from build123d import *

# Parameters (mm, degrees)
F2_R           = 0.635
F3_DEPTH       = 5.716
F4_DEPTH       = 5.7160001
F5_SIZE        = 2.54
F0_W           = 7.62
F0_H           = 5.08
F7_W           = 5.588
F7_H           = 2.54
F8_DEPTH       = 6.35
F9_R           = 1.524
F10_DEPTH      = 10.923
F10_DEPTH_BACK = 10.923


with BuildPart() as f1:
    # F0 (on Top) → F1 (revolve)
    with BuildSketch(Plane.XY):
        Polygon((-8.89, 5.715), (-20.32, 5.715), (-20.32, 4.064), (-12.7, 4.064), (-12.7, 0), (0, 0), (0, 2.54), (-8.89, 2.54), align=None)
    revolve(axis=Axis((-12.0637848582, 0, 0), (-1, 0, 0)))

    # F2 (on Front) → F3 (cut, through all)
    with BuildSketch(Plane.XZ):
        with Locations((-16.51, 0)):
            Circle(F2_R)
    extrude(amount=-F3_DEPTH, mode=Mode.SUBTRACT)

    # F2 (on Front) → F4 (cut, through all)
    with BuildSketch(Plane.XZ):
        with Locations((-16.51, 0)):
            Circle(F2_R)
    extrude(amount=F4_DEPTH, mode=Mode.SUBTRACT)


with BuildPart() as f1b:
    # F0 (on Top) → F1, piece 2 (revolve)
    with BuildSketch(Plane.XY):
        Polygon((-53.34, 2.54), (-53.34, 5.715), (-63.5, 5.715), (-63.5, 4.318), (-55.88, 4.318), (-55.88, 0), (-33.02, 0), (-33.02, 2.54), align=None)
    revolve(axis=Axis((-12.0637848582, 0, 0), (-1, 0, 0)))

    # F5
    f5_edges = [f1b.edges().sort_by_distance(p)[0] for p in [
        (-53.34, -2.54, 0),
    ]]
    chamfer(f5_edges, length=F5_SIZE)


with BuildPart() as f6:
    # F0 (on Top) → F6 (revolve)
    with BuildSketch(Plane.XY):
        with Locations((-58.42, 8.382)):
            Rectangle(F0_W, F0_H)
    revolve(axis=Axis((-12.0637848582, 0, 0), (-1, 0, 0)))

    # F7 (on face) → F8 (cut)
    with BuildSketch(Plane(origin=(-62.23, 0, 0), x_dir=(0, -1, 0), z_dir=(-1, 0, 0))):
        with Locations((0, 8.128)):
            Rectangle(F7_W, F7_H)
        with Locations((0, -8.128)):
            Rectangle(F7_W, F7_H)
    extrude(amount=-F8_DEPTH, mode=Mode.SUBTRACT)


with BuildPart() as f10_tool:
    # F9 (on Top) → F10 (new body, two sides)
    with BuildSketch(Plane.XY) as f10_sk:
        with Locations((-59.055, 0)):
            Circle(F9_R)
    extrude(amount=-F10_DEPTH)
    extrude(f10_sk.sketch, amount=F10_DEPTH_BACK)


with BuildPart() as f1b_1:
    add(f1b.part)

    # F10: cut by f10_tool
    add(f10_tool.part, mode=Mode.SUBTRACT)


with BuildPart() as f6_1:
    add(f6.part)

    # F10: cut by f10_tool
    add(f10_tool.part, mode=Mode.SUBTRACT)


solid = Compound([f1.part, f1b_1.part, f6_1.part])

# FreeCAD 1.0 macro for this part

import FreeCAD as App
import Part
import Sketcher
Q = App.Units.Quantity


def edges_at(feature, points):
    """Names of the edges that pass closest to the given points."""
    edges = feature.Shape.Edges
    near = lambda p: min(range(len(edges)), key=lambda i: edges[i].distToShape(Part.Vertex(*p))[0])
    return sorted({f"Edge{near(p) + 1}" for p in points})


def add_polygon(sketch, points):
    """Adds a closed chain of lines whose ends are joined by coincident constraints."""
    first, n = sketch.GeometryCount, len(points)
    for a, b in zip(points, points[1:] + points[:1]):
        sketch.addGeometry(Part.LineSegment(App.Vector(*a, 0), App.Vector(*b, 0)), False)
    for i in range(n):
        sketch.addConstraint(Sketcher.Constraint("Coincident", first + i, 2, first + (i + 1) % n, 1))

doc = App.newDocument("Part")
body = doc.addObject("PartDesign::Body", "Body")

# Sketch on XY plane
sketch1 = doc.addObject("Sketcher::SketchObject", "Sketch")
body.addObject(sketch1)
sketch1.AttachmentSupport = (doc.XY_Plane, [""])
sketch1.MapMode = "FlatFace"
add_polygon(sketch1, [(-8.9, 5.7), (-20.3, 5.7), (-20.3, 4.1), (-12.7, 4.1), (-12.7, 0), (0, 0), (0, 2.5), (-8.9, 2.5)])  # lines 0-7
sketch1.addConstraint(Sketcher.Constraint("Horizontal", 0))
sketch1.addConstraint(Sketcher.Constraint("Vertical", 1))
sketch1.addConstraint(Sketcher.Constraint("Horizontal", 2))
sketch1.addConstraint(Sketcher.Constraint("Vertical", 3))
sketch1.addConstraint(Sketcher.Constraint("Horizontal", 4))
sketch1.addConstraint(Sketcher.Constraint("Vertical", 5))
sketch1.addConstraint(Sketcher.Constraint("Horizontal", 6))
sketch1.addConstraint(Sketcher.Constraint("Vertical", 7))
sketch1.addConstraint(Sketcher.Constraint("Coincident", 4, 2, -1, 1))
sketch1.addConstraint(Sketcher.Constraint("DistanceX", 2, 1, 2, 2, Q("0.3 in")))
sketch1.addConstraint(Sketcher.Constraint("DistanceX", 4, 1, 4, 2, Q("0.5 in")))
sketch1.addConstraint(Sketcher.Constraint("DistanceY", 5, 1, 5, 2, Q("0.1 in")))
sketch1.addConstraint(Sketcher.Constraint("DistanceX", 0, 2, 0, 1, Q("0.45 in")))
sketch1.addConstraint(Sketcher.Constraint("DistanceY", 3, 2, 3, 1, Q("0.16 in")))
sketch1.addConstraint(Sketcher.Constraint("DistanceY", 1, 2, 1, 1, Q("0.065 in")))
revolution = doc.addObject("PartDesign::Revolution", "Revolution")
body.addObject(revolution)
revolution.Profile = sketch1
revolution.ReferenceAxis = (sketch1, ["H_Axis"])
revolution.Angle = 360

# Sketch on XZ plane
sketch2 = doc.addObject("Sketcher::SketchObject", "Sketch001")
body.addObject(sketch2)
sketch2.AttachmentSupport = (doc.XZ_Plane, [""])
sketch2.MapMode = "FlatFace"
sketch2.addGeometry(Part.Circle(App.Vector(-16.5, 0, 0), App.Vector(0, 0, 1), 0.6), False)
sketch2.addConstraint(Sketcher.Constraint("PointOnObject", 0, 3, -1))
sketch2.addConstraint(Sketcher.Constraint("Diameter", 0, Q("0.05 in")))
sketch2.addConstraint(Sketcher.Constraint("DistanceX", 0, 3, -1, 1, Q("0.65 in")))
pocket1 = doc.addObject("PartDesign::Pocket", "Pocket")
body.addObject(pocket1)
pocket1.Profile = sketch2
pocket1.Type = "ThroughAll"

# Sketch on XZ plane
sketch3 = doc.addObject("Sketcher::SketchObject", "Sketch002")
body.addObject(sketch3)
sketch3.AttachmentSupport = (doc.XZ_Plane, [""])
sketch3.MapMode = "FlatFace"
sketch3.addGeometry(Part.Circle(App.Vector(-16.5, 0, 0), App.Vector(0, 0, 1), 0.6), False)
sketch3.addConstraint(Sketcher.Constraint("PointOnObject", 0, 3, -1))
sketch3.addConstraint(Sketcher.Constraint("Diameter", 0, Q("0.05 in")))
sketch3.addConstraint(Sketcher.Constraint("DistanceX", 0, 3, -1, 1, Q("0.65 in")))
pocket2 = doc.addObject("PartDesign::Pocket", "Pocket001")
body.addObject(pocket2)
pocket2.Profile = sketch3
pocket2.Type = "ThroughAll"
pocket2.Reversed = True
body2 = doc.addObject("PartDesign::Body", "Body001")

# Sketch on XY plane
sketch4 = doc.addObject("Sketcher::SketchObject", "Sketch003")
body2.addObject(sketch4)
sketch4.AttachmentSupport = (doc.getObject("XY_Plane001"), [""])
sketch4.MapMode = "FlatFace"
add_polygon(sketch4, [(-53.3, 2.5), (-53.3, 5.7), (-63.5, 5.7), (-63.5, 4.3), (-55.9, 4.3), (-55.9, 0), (-33, 0), (-33, 2.5)])  # lines 0-7
sketch4.addConstraint(Sketcher.Constraint("Vertical", 0))
sketch4.addConstraint(Sketcher.Constraint("Horizontal", 1))
sketch4.addConstraint(Sketcher.Constraint("Vertical", 2))
sketch4.addConstraint(Sketcher.Constraint("Horizontal", 3))
sketch4.addConstraint(Sketcher.Constraint("Vertical", 4))
sketch4.addConstraint(Sketcher.Constraint("Horizontal", 5))
sketch4.addConstraint(Sketcher.Constraint("Vertical", 6))
sketch4.addConstraint(Sketcher.Constraint("Horizontal", 7))
sketch4.addConstraint(Sketcher.Constraint("PointOnObject", 4, 2, -1))
sketch4.addConstraint(Sketcher.Constraint("DistanceX", 1, 2, 1, 1, Q("0.4 in")))
sketch4.addConstraint(Sketcher.Constraint("DistanceX", 3, 1, 3, 2, Q("0.3 in")))
sketch4.addConstraint(Sketcher.Constraint("DistanceX", 5, 1, 5, 2, Q("0.9 in")))
sketch4.addConstraint(Sketcher.Constraint("DistanceY", 6, 1, 6, 2, Q("0.1 in")))
sketch4.addConstraint(Sketcher.Constraint("DistanceY", 4, 2, 4, 1, Q("0.17 in")))
sketch4.addConstraint(Sketcher.Constraint("DistanceX", 0, 2, -1, 1, Q("2.1 in")))
sketch4.addConstraint(Sketcher.Constraint("DistanceY", 0, 1, 0, 2, Q("0.125 in")))
revolution2 = doc.addObject("PartDesign::Revolution", "Revolution001")
body2.addObject(revolution2)
revolution2.Profile = sketch4
revolution2.ReferenceAxis = (sketch4, ["H_Axis"])
revolution2.Angle = 360
doc.recompute()

chamfer = doc.addObject("PartDesign::Chamfer", "Chamfer")
body2.addObject(chamfer)
chamfer.Base = (revolution2, edges_at(revolution2, [(-53.34, -2.54, 0)]))
chamfer.Size = Q("0.1 in")
body3 = doc.addObject("PartDesign::Body", "Body002")

# Sketch on XY plane
sketch5 = doc.addObject("Sketcher::SketchObject", "Sketch004")
body3.addObject(sketch5)
sketch5.AttachmentSupport = (doc.getObject("XY_Plane002"), [""])
sketch5.MapMode = "FlatFace"
add_polygon(sketch5, [(-62, 11), (-62, 6), (-55, 6), (-55, 11)])  # lines 0-3
sketch5.addConstraint(Sketcher.Constraint("Vertical", 0))
sketch5.addConstraint(Sketcher.Constraint("Horizontal", 1))
sketch5.addConstraint(Sketcher.Constraint("Vertical", 2))
sketch5.addConstraint(Sketcher.Constraint("Horizontal", 3))
sketch5.addConstraint(Sketcher.Constraint("DistanceX", 1, 1, 1, 2, Q("0.3 in")))
sketch5.addConstraint(Sketcher.Constraint("DistanceY", 0, 2, 0, 1, Q("0.2 in")))
sketch5.addConstraint(Sketcher.Constraint("DistanceX", 0, 2, -1, 1, Q("2.45 in")))
sketch5.addConstraint(Sketcher.Constraint("DistanceY", -1, 1, 0, 2, Q("0.23 in")))
revolution3 = doc.addObject("PartDesign::Revolution", "Revolution002")
body3.addObject(revolution3)
revolution3.Profile = sketch5
revolution3.ReferenceAxis = (sketch5, ["H_Axis"])
revolution3.Angle = 360

# Sketch on YZ plane
sketch6 = doc.addObject("Sketcher::SketchObject", "Sketch005")
body3.addObject(sketch6)
sketch6.AttachmentSupport = (doc.getObject("YZ_Plane002"), [""])
sketch6.MapMode = "FlatFace"
sketch6.AttachmentOffset = App.Placement(App.Vector(0, 0, -2.45 * 25.4), App.Rotation())
add_polygon(sketch6, [(2.8, 9.4), (2.8, 6.9), (-2.8, 6.9), (-2.8, 9.4)])  # lines 0-3
add_polygon(sketch6, [(2.8, -6.9), (2.8, -9.4), (-2.8, -9.4), (-2.8, -6.9)])  # lines 4-7
sketch6.addConstraint(Sketcher.Constraint("Vertical", 0))
sketch6.addConstraint(Sketcher.Constraint("Horizontal", 1))
sketch6.addConstraint(Sketcher.Constraint("Vertical", 2))
sketch6.addConstraint(Sketcher.Constraint("Horizontal", 3))
sketch6.addConstraint(Sketcher.Constraint("Vertical", 4))
sketch6.addConstraint(Sketcher.Constraint("Horizontal", 5))
sketch6.addConstraint(Sketcher.Constraint("Vertical", 6))
sketch6.addConstraint(Sketcher.Constraint("Horizontal", 7))
sketch6.addConstraint(Sketcher.Constraint("Symmetric", 2, 2, 4, 2, -1, 1))
sketch6.addConstraint(Sketcher.Constraint("Symmetric", 0, 2, 6, 2, -1, 1))
sketch6.addConstraint(Sketcher.Constraint("Vertical", 3, 2, 4, 2))
sketch6.addConstraint(Sketcher.Constraint("DistanceY", 0, 2, 0, 1, Q("0.1 in")))
sketch6.addConstraint(Sketcher.Constraint("DistanceX", 1, 2, 1, 1, Q("0.22 in")))
sketch6.addConstraint(Sketcher.Constraint("DistanceY", -1, 1, 0, 2, Q("0.27 in")))
pocket3 = doc.addObject("PartDesign::Pocket", "Pocket002")
body3.addObject(pocket3)
pocket3.Profile = sketch6
pocket3.Length = Q("0.25 in")
pocket3.Reversed = True
body4 = doc.addObject("PartDesign::Body", "Body003")

# Sketch on XY plane
sketch7 = doc.addObject("Sketcher::SketchObject", "Sketch006")
body4.addObject(sketch7)
sketch7.AttachmentSupport = (doc.getObject("XY_Plane003"), [""])
sketch7.MapMode = "FlatFace"
sketch7.addGeometry(Part.Circle(App.Vector(-59.1, 0, 0), App.Vector(0, 0, 1), 1.5), False)
sketch7.addConstraint(Sketcher.Constraint("PointOnObject", 0, 3, -1))
sketch7.addConstraint(Sketcher.Constraint("Diameter", 0, Q("0.12 in")))
sketch7.addConstraint(Sketcher.Constraint("DistanceX", 0, 3, -1, 1, Q("2.325 in")))
pad1 = doc.addObject("PartDesign::Pad", "Pad")
body4.addObject(pad1)
pad1.Profile = sketch7
pad1.Type = "TwoLengths"
pad1.Length = 10.923
pad1.Length2 = 10.923
pad1.Reversed = True
doc.recompute()

body5 = doc.addObject("PartDesign::Body", "Body004")
body5.BaseFeature = body4
boolean = doc.addObject("PartDesign::Boolean", "Boolean")
body2.addObject(boolean)
boolean.Type = "Cut"
boolean.addObjects([body5])
doc.recompute()

boolean2 = doc.addObject("PartDesign::Boolean", "Boolean001")
body3.addObject(boolean2)
boolean2.Type = "Cut"
boolean2.addObjects([body4])

doc.recompute()
